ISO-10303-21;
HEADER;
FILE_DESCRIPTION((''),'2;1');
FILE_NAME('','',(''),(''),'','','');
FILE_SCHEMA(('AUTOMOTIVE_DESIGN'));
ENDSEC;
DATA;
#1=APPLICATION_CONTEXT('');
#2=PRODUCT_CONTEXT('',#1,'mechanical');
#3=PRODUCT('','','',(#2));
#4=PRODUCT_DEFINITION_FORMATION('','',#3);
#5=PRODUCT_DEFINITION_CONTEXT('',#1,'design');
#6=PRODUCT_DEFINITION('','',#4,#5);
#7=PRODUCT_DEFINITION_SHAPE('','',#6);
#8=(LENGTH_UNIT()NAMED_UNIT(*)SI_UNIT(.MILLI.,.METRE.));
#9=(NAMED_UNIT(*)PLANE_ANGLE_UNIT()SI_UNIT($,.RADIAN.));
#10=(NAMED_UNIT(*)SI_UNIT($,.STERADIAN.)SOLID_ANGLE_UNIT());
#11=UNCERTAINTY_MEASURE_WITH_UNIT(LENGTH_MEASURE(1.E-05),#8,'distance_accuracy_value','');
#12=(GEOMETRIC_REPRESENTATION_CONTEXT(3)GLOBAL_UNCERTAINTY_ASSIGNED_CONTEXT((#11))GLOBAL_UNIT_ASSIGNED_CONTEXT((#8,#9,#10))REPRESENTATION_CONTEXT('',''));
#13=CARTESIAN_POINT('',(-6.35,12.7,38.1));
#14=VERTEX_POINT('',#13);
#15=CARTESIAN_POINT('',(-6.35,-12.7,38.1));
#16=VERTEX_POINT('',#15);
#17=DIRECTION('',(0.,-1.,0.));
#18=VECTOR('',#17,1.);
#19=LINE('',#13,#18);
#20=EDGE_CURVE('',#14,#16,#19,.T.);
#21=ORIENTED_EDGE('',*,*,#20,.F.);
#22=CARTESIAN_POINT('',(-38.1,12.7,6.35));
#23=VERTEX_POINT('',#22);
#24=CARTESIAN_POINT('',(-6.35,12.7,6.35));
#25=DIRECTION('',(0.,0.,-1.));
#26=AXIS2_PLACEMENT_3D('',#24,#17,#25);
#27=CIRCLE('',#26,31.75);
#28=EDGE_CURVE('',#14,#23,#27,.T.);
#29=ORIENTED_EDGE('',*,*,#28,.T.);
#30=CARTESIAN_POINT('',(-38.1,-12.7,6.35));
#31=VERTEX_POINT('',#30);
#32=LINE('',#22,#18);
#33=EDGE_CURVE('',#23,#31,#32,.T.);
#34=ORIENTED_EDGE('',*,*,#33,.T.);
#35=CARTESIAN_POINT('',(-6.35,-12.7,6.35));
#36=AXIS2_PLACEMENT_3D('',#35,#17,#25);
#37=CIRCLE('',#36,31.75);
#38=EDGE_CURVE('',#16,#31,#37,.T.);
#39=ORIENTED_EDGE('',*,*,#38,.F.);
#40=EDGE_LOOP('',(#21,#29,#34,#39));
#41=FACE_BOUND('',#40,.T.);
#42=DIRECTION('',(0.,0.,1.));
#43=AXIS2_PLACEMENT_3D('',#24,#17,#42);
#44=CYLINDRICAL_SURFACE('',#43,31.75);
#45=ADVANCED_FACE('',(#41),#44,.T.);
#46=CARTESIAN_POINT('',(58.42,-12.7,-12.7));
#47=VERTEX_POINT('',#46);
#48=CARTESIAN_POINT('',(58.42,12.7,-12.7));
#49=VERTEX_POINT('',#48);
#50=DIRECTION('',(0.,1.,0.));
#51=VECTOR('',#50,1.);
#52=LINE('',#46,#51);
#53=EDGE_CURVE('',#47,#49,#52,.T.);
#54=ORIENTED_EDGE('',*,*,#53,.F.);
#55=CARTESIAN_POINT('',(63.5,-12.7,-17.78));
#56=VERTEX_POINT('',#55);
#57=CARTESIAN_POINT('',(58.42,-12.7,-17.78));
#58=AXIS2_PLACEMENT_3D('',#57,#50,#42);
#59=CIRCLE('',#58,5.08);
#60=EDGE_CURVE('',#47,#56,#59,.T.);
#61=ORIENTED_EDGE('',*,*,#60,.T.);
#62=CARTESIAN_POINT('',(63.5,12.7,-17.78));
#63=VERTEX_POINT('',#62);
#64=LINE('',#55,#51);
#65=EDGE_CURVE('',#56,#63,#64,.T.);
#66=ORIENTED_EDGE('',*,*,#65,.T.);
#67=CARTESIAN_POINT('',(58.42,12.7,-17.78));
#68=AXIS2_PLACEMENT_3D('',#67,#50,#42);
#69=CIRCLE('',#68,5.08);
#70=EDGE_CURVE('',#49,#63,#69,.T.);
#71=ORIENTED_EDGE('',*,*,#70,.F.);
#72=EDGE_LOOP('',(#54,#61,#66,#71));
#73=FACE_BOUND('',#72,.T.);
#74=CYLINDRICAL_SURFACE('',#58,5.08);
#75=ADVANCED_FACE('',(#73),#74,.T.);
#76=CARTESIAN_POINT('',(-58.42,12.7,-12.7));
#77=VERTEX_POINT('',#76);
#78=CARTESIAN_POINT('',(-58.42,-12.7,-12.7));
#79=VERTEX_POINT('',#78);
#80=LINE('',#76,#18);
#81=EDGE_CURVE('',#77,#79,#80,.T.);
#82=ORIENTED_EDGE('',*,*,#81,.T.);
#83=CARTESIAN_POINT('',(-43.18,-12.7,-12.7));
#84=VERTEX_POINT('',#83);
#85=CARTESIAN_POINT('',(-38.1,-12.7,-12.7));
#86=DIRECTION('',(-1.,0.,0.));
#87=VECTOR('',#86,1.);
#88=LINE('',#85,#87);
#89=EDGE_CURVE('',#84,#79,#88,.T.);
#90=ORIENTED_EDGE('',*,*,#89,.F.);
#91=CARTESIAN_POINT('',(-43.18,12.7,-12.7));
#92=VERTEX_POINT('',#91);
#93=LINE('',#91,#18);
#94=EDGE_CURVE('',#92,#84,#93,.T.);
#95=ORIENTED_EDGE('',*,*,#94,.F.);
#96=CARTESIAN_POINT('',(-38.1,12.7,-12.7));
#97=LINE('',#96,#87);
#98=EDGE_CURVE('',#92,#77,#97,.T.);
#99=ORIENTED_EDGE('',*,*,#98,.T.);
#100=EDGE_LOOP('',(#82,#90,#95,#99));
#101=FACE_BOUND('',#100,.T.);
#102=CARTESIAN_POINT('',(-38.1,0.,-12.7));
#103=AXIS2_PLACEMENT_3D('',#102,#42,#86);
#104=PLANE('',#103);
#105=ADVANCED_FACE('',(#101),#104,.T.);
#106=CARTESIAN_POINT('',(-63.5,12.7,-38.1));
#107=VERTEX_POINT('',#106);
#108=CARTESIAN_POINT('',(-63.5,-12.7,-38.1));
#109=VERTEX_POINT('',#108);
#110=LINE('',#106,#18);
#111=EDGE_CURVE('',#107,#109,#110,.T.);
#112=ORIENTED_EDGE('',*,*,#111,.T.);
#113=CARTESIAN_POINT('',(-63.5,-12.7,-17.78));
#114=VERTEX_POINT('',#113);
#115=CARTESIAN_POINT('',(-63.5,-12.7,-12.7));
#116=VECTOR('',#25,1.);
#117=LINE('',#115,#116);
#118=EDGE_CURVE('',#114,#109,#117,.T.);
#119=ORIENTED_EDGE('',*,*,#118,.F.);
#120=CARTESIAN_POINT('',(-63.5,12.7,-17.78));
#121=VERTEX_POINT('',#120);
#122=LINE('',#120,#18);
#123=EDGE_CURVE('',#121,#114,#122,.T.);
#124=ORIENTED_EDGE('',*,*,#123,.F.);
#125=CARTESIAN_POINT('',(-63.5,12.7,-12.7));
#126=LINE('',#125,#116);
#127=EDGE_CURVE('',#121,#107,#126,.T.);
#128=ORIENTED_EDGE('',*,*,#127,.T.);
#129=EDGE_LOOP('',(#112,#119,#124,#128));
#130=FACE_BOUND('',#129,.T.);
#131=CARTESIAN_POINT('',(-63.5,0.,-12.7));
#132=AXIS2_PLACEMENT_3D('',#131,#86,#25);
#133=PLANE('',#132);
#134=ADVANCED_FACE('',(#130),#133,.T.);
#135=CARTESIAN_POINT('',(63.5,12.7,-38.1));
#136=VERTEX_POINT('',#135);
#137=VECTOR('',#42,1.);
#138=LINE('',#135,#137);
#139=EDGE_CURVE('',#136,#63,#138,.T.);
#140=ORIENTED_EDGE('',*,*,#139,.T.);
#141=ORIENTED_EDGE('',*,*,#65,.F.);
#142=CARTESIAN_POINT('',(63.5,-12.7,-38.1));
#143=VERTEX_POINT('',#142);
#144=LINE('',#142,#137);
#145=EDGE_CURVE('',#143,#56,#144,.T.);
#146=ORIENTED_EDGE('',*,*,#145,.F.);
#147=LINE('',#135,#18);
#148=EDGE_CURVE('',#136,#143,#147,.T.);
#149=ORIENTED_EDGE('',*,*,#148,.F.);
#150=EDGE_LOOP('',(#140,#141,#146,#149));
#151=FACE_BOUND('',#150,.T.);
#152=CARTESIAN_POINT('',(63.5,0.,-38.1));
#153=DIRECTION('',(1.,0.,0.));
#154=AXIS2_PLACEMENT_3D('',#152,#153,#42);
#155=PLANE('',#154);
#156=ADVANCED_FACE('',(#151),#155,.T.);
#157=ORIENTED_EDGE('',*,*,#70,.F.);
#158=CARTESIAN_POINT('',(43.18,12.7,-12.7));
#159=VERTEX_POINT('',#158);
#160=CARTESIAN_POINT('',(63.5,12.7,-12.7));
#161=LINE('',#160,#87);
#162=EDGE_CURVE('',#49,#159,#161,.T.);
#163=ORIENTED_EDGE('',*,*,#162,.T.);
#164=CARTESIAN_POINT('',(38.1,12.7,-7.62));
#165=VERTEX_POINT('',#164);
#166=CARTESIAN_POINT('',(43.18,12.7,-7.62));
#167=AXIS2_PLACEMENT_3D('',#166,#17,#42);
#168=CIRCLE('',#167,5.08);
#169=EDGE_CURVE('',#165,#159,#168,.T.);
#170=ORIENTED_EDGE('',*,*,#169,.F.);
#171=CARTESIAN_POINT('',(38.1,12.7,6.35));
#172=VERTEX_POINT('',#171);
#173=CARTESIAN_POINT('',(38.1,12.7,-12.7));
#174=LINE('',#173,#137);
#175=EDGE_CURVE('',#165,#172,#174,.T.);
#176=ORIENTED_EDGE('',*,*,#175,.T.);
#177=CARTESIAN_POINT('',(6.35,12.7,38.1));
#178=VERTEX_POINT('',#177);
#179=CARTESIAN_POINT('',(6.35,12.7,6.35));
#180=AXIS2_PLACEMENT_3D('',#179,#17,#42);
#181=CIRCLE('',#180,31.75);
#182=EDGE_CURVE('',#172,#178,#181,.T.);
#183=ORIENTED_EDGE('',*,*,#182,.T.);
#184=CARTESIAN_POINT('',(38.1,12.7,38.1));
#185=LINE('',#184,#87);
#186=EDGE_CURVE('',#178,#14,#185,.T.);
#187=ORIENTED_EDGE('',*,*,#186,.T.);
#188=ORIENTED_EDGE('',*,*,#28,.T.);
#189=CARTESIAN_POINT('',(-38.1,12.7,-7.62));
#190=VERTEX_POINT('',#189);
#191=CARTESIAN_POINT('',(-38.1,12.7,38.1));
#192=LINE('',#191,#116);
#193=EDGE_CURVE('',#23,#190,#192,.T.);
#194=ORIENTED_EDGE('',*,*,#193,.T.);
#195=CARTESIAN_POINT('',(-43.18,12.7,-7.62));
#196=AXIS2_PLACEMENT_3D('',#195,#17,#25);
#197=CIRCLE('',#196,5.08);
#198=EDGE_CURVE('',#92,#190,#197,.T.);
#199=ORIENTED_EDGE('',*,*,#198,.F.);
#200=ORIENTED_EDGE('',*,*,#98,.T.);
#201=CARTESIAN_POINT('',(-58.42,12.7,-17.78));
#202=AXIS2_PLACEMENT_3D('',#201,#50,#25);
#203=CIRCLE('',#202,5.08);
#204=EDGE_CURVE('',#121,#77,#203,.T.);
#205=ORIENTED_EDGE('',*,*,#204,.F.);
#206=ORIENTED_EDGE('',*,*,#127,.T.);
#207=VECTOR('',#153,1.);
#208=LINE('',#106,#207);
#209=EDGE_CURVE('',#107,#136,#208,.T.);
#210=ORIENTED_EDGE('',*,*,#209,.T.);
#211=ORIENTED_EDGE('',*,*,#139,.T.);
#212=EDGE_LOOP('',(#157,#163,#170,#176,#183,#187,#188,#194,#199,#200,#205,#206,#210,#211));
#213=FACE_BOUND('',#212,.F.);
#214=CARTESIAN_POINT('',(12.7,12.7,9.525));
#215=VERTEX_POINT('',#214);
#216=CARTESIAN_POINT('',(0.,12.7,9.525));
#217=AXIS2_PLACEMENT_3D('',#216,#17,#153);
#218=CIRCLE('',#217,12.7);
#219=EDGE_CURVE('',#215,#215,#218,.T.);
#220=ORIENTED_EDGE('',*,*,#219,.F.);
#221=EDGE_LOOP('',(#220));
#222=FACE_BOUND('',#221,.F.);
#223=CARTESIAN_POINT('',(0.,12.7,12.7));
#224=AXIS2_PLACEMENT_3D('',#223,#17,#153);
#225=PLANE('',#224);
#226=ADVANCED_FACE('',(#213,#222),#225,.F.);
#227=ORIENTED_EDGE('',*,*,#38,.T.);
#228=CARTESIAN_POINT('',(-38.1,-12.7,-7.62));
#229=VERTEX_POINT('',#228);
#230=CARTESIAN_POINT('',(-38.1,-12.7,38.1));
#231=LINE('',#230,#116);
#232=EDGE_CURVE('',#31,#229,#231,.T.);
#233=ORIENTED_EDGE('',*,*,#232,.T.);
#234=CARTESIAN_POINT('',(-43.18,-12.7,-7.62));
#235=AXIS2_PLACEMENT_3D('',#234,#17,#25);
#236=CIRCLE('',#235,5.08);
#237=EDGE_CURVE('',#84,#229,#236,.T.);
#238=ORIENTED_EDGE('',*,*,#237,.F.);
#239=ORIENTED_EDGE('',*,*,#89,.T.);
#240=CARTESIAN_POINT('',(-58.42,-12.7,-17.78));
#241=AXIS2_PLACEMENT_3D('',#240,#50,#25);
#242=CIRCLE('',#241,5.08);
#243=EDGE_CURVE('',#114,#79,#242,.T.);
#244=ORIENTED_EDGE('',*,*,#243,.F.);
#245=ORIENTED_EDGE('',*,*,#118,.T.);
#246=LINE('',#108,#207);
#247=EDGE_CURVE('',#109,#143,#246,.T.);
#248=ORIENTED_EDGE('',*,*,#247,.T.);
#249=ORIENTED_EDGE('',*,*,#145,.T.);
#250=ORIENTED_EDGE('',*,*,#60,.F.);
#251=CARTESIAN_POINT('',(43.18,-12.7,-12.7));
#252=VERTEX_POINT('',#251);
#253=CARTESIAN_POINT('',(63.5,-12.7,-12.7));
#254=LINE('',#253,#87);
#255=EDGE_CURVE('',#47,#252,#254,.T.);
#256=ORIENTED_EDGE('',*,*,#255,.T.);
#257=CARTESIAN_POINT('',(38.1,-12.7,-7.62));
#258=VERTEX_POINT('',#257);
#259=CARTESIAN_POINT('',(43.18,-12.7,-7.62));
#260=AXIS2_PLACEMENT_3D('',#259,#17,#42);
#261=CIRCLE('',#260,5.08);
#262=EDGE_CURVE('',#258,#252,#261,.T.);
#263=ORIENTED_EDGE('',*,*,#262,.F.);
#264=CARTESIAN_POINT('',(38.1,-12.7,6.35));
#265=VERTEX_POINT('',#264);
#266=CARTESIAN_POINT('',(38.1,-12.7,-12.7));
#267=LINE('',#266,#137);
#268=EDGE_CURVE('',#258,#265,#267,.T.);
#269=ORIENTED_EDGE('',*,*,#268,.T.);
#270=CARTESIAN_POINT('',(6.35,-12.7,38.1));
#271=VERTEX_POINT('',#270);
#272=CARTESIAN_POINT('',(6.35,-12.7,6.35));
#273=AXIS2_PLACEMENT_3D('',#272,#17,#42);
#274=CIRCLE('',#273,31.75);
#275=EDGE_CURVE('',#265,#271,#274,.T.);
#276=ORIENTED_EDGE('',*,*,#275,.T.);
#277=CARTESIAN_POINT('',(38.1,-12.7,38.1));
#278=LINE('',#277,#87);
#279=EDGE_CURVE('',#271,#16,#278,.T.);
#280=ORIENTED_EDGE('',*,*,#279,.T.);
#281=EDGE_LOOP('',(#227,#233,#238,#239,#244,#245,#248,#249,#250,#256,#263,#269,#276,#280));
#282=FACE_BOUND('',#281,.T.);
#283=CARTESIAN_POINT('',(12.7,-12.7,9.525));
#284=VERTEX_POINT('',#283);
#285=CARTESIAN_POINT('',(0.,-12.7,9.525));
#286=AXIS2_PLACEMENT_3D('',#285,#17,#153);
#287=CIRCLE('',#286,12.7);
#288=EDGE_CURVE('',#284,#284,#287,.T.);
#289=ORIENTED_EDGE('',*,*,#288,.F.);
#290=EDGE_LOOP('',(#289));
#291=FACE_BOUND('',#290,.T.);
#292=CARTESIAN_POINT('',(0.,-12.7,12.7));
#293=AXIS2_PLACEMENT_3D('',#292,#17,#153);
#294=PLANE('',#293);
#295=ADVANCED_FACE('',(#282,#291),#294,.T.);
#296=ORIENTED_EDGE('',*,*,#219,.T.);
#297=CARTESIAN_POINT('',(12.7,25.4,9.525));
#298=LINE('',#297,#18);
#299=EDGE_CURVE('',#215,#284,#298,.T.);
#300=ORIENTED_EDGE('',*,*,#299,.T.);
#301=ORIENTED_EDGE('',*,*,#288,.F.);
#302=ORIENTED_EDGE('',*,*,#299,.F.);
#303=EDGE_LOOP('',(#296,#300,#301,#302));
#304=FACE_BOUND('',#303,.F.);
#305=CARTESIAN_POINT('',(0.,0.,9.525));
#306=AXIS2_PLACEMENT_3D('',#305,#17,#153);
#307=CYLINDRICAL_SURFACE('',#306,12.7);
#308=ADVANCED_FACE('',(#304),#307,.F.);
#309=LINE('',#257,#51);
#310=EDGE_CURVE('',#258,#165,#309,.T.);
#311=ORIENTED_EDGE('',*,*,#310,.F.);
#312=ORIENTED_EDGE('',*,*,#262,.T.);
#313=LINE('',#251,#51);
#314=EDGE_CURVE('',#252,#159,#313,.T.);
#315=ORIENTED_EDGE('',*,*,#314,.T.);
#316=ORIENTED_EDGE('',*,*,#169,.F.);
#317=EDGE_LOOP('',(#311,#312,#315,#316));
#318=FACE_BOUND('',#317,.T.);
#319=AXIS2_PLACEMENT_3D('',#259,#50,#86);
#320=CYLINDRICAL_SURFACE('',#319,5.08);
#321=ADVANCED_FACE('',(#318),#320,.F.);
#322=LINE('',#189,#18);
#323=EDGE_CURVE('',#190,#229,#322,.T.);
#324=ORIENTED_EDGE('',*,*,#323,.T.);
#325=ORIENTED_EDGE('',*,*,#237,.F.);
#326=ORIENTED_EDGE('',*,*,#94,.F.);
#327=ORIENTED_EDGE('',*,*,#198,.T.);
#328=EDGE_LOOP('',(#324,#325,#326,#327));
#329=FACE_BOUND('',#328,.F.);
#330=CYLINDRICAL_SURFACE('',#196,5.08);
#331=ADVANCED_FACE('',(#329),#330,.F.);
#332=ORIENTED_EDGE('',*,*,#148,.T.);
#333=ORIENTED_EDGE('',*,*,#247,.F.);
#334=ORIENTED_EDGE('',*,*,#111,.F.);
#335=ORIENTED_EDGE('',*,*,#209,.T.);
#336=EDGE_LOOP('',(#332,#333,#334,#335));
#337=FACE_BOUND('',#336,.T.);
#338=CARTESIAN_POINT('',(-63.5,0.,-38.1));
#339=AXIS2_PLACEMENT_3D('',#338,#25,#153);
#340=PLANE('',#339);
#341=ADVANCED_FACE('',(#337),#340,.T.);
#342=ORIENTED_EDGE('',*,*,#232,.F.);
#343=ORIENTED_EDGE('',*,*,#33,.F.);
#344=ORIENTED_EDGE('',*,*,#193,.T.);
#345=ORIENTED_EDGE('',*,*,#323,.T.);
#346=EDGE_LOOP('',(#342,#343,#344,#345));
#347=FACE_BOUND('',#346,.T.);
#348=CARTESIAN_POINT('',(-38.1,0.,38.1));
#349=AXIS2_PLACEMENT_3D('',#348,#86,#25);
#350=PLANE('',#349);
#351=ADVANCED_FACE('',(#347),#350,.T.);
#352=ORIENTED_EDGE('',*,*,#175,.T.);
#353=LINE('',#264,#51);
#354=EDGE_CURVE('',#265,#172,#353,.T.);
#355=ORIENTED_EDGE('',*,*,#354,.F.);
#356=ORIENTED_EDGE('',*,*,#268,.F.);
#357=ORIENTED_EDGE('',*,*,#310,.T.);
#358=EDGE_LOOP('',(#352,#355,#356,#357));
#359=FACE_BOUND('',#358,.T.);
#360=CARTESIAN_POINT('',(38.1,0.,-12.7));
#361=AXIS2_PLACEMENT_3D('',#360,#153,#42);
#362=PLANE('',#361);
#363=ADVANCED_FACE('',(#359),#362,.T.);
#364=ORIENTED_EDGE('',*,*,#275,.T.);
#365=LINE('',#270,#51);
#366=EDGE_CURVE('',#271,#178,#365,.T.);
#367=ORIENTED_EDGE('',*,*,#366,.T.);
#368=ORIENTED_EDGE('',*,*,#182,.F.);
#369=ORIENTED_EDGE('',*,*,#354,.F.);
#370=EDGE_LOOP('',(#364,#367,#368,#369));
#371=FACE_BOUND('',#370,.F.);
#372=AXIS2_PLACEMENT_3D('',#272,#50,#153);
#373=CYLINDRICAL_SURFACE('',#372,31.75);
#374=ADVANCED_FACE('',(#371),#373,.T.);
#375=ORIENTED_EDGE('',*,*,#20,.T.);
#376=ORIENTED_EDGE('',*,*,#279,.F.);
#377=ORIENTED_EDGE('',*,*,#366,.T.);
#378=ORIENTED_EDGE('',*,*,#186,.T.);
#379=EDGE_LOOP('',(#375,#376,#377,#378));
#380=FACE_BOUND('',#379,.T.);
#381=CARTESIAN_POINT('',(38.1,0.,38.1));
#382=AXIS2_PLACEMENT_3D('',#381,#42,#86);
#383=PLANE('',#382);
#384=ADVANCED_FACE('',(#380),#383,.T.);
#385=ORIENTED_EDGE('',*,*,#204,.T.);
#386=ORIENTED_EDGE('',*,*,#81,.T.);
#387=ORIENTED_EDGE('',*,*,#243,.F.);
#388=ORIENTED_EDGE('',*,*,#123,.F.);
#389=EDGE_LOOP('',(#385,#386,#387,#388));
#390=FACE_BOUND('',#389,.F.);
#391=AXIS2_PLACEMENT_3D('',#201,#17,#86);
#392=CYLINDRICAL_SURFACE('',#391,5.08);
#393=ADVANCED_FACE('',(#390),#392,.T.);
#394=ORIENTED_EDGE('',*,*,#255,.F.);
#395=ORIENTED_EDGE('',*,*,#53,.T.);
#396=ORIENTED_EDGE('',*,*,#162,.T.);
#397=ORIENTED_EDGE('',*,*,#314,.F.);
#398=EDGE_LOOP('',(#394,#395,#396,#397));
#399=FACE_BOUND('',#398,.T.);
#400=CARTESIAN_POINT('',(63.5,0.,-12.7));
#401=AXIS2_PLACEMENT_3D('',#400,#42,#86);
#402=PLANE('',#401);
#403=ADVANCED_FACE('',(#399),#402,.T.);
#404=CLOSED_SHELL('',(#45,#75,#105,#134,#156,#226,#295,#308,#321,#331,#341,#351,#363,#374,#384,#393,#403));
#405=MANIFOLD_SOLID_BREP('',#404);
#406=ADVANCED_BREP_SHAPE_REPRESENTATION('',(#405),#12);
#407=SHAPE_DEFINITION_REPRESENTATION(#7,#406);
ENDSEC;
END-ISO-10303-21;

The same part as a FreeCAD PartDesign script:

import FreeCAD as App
import Part
import Sketcher
from FreeCAD import Vector
Q = App.Units.Quantity


def edges_at(feature, points):
    """Names of the edges that pass closest to the given points."""
    edges = feature.Shape.Edges
    near = lambda p: min(range(len(edges)), key=lambda i: edges[i].distToShape(Part.Vertex(*p))[0])
    return sorted({f"Edge{near(p) + 1}" for p in points})

doc = App.newDocument("Part")
body = doc.addObject("PartDesign::Body", "Body")

# Sketch on XZ plane
sketch1 = body.newObject("Sketcher::SketchObject", "Sketch")
sketch1.AttachmentSupport = (doc.getObject("XZ_Plane"), [""])
sketch1.MapMode = "FlatFace"
sketch1.addGeometry([
    Part.LineSegment(Vector(38, 38, 0), Vector(-38, 38, 0)),  # 0
    Part.LineSegment(Vector(-38, 38, 0), Vector(-38, -13, 0)),  # 1
    Part.LineSegment(Vector(-38, -13, 0), Vector(-64, -13, 0)),  # 2
    Part.LineSegment(Vector(-64, -13, 0), Vector(-64, -38, 0)),  # 3
    Part.LineSegment(Vector(-64, -38, 0), Vector(64, -38, 0)),  # 4
    Part.LineSegment(Vector(64, -38, 0), Vector(64, -13, 0)),  # 5
    Part.LineSegment(Vector(64, -13, 0), Vector(38, -13, 0)),  # 6
    Part.LineSegment(Vector(38, -13, 0), Vector(38, 38, 0)),  # 7
], False)
sketch1.addConstraint([
    Sketcher.Constraint("Coincident", 0, 2, 1, 1),
    Sketcher.Constraint("Coincident", 1, 2, 2, 1),
    Sketcher.Constraint("Coincident", 2, 2, 3, 1),
    Sketcher.Constraint("Coincident", 3, 2, 4, 1),
    Sketcher.Constraint("Coincident", 4, 2, 5, 1),
    Sketcher.Constraint("Coincident", 5, 2, 6, 1),
    Sketcher.Constraint("Coincident", 6, 2, 7, 1),
    Sketcher.Constraint("Coincident", 7, 2, 0, 1),
    Sketcher.Constraint("Horizontal", 0),
    Sketcher.Constraint("Vertical", 1),
    Sketcher.Constraint("Horizontal", 2),
    Sketcher.Constraint("Vertical", 3),
    Sketcher.Constraint("Horizontal", 4),
    Sketcher.Constraint("Vertical", 5),
    Sketcher.Constraint("Horizontal", 6),
    Sketcher.Constraint("Vertical", 7),
    Sketcher.Constraint("Symmetric", 2, 2, 5, 2, -2),
    Sketcher.Constraint("Equal", 2, 6),
    Sketcher.Constraint("Equal", 6, 3),
    Sketcher.Constraint("DistanceX", 0, 2, 0, 1, Q("3 in")),
    Sketcher.Constraint("DistanceX", 2, 2, 2, 1, Q("1 in")),
    Sketcher.Constraint("DistanceY", 1, 2, 1, 1, Q("2 in")),
    Sketcher.Constraint("DistanceY", -1, 1, 0, 2, Q("1.5 in")),
])
pad1 = body.newObject("PartDesign::Pad", "Pad")
pad1.Profile = sketch1
pad1.Length = Q("1 in")
pad1.Midplane = True
doc.recompute()

fillet = body.newObject("PartDesign::Fillet", "Fillet")
fillet.Base = (pad1, edges_at(pad1, [
    (-63.5, 0, -12.7),
    (63.5, 0, -12.7),
    (-38.1, 0, -12.7),
    (38.1, 0, -12.7),
]))
fillet.Radius = Q("0.2 in")
doc.recompute()

fillet2 = body.newObject("PartDesign::Fillet", "Fillet001")
fillet2.Base = (fillet, edges_at(fillet, [(-38.1, 0, 38.1), (38.1, 0, 38.1)]))
fillet2.Radius = Q("1.25 in")

# Sketch on XZ plane
sketch2 = body.newObject("Sketcher::SketchObject", "Sketch001")
sketch2.AttachmentSupport = (doc.getObject("XZ_Plane"), [""])
sketch2.MapMode = "FlatFace"
sketch2.addGeometry(Part.Circle(Vector(0, 10, 0), Vector(0, 0, 1), 13), False)
sketch2.addConstraint([
    Sketcher.Constraint("PointOnObject", 0, 3, -2),
    Sketcher.Constraint("Diameter", 0, Q("1 in")),
    Sketcher.Constraint("DistanceY", -1, 1, 0, 3, Q("0.375 in")),
])
pocket1 = body.newObject("PartDesign::Pocket", "Pocket")
pocket1.Profile = sketch2
pocket1.Length = Q("2 in")
pocket1.Midplane = True

doc.recompute()
